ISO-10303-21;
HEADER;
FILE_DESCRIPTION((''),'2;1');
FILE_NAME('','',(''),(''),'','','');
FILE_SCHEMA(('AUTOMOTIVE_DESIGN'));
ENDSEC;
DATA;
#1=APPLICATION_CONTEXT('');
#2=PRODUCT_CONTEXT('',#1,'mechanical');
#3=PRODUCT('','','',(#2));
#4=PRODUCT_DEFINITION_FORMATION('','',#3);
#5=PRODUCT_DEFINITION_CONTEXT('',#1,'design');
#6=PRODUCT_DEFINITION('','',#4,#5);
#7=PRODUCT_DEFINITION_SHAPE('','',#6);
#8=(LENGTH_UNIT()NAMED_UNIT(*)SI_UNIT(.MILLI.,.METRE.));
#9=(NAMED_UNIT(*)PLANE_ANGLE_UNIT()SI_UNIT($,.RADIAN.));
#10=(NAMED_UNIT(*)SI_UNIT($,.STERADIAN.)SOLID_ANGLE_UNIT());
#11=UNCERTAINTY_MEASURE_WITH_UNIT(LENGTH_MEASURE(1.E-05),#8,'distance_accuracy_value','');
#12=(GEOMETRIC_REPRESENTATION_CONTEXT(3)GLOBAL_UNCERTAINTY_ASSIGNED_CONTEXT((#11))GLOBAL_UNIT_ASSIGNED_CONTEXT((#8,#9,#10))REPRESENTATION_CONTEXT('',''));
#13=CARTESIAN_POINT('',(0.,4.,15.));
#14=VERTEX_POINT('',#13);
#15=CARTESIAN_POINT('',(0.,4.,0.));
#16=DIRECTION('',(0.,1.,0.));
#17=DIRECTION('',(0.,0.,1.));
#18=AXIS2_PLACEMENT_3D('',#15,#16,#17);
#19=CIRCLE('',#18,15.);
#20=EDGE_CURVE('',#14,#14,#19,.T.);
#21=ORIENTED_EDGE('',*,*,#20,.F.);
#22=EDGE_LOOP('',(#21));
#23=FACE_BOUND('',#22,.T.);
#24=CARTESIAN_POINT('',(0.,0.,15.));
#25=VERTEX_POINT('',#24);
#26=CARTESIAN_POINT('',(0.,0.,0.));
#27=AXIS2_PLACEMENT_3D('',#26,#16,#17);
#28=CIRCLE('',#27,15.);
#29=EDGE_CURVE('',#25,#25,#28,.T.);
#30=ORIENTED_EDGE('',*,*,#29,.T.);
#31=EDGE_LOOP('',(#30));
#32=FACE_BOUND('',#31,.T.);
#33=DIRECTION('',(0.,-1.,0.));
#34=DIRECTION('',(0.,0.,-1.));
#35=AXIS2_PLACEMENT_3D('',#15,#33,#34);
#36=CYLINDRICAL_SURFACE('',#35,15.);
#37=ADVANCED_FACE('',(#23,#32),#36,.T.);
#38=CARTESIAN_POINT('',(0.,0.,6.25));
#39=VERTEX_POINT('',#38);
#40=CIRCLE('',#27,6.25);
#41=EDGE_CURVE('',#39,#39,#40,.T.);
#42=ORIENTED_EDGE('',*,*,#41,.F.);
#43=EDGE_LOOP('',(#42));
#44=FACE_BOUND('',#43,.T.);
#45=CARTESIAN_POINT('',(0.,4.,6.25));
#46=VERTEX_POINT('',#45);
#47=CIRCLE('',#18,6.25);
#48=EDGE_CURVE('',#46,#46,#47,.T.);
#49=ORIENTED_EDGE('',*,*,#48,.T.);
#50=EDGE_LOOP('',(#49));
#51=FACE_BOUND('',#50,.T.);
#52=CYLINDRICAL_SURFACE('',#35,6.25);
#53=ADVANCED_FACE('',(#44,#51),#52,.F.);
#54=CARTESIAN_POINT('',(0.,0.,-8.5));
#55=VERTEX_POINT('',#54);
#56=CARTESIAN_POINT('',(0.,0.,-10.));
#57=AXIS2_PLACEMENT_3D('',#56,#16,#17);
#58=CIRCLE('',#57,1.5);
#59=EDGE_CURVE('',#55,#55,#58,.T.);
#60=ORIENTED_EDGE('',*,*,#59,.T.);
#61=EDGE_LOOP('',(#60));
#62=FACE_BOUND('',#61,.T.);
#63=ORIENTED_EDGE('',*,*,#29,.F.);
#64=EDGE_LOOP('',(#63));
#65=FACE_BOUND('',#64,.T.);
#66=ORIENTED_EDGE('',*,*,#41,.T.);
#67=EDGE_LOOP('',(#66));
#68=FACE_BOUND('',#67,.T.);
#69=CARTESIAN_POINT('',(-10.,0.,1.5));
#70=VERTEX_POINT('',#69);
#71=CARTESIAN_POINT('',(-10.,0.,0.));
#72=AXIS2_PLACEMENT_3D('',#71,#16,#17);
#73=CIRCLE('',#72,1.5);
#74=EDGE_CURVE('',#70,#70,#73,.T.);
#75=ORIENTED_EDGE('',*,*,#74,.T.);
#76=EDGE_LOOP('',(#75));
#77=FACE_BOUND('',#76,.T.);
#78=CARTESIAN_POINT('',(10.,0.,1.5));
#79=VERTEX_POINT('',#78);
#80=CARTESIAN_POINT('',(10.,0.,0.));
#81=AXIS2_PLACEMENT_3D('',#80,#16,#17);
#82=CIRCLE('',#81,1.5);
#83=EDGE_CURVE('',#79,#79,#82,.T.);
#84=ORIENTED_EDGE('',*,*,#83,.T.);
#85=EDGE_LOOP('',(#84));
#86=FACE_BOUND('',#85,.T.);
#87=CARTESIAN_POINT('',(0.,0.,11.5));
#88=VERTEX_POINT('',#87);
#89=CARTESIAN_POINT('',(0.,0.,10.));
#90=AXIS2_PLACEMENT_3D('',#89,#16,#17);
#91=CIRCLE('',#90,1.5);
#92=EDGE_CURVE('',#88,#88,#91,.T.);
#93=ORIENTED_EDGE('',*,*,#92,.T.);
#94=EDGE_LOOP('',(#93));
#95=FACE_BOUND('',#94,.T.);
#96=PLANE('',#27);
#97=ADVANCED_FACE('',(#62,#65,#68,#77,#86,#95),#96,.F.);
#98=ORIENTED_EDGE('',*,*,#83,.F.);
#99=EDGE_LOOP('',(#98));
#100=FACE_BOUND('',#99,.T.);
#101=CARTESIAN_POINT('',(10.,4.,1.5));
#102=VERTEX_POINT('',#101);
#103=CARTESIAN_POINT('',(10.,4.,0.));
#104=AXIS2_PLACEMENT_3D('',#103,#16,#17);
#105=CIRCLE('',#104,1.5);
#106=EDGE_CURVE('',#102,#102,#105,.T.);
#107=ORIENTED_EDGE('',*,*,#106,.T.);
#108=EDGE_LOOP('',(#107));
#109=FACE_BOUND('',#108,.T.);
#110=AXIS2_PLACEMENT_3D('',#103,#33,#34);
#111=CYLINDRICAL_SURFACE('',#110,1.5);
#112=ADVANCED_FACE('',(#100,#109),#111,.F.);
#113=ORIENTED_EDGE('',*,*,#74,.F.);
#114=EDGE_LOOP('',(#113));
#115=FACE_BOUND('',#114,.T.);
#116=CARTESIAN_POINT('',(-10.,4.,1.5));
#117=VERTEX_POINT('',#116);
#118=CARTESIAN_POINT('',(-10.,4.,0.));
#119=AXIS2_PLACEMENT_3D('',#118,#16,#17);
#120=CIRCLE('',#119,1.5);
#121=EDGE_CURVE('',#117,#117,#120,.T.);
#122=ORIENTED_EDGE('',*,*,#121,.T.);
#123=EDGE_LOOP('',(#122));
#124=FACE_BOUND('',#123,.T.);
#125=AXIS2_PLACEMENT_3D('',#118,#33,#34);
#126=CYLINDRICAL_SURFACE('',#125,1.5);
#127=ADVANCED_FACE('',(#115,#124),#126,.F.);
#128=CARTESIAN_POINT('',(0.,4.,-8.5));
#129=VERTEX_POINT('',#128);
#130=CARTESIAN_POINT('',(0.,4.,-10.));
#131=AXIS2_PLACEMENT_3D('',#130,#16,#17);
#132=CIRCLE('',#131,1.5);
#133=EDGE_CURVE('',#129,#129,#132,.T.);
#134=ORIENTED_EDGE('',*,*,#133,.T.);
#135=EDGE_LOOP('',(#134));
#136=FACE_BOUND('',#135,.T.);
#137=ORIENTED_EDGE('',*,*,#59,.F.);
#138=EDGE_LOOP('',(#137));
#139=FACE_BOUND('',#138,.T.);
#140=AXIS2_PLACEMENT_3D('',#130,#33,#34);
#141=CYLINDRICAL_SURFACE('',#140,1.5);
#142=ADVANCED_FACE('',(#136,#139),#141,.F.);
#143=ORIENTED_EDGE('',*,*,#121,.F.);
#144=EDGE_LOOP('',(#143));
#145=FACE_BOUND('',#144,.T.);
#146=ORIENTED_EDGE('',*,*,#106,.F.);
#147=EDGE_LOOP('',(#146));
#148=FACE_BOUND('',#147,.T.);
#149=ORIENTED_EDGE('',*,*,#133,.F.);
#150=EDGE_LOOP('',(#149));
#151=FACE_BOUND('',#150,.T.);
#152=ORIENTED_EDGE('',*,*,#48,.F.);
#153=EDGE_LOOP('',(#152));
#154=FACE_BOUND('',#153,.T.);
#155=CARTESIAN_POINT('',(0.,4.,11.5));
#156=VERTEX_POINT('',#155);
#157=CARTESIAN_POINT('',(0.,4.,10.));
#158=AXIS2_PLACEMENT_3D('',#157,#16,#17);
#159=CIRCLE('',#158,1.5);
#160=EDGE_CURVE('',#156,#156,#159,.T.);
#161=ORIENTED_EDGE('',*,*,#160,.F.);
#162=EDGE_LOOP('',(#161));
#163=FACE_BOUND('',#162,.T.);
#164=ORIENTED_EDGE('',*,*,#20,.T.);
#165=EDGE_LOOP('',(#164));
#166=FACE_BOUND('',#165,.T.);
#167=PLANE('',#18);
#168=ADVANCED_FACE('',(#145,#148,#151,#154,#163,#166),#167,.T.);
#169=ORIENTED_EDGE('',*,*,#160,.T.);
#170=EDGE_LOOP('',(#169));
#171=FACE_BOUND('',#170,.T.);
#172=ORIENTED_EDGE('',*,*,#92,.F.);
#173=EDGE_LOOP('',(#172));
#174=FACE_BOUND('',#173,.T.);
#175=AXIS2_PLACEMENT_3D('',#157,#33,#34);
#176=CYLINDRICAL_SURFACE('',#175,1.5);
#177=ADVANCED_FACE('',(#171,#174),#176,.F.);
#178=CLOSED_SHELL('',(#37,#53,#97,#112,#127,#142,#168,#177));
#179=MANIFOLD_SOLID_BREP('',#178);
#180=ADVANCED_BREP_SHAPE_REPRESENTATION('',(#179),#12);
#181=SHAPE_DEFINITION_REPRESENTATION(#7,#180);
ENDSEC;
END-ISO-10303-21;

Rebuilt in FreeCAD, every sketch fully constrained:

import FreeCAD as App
import Part
import Sketcher

V = App.Vector

doc = App.newDocument("Part")
body = doc.addObject("PartDesign::Body", "Body")

# Sketch on XZ plane
sketch1 = body.newObject("Sketcher::SketchObject", "Sketch")
sketch1.AttachmentSupport = (doc.getObject("XZ_Plane"), [""])
sketch1.MapMode = "FlatFace"
sketch1.addGeometry(Part.Circle(V(0, 0, 0), V(0, 0, 1), 15), False)
sketch1.addGeometry(Part.Circle(V(0, -10, 0), V(0, 0, 1), 1.5), False)
sketch1.addGeometry(Part.Circle(V(-10, 0, 0), V(0, 0, 1), 1.5), False)
sketch1.addGeometry(Part.Circle(V(10, 0, 0), V(0, 0, 1), 1.5), False)
sketch1.addGeometry(Part.Circle(V(0, 0, 0), V(0, 0, 1), 6.25), False)
sketch1.addGeometry(Part.Circle(V(0, 10, 0), V(0, 0, 1), 1.5), False)
sketch1.addConstraint(Sketcher.Constraint("Coincident", 0, 3, -1, 1))
sketch1.addConstraint(Sketcher.Constraint("Coincident", 4, 3, -1, 1))
sketch1.addConstraint(Sketcher.Constraint("Equal", 1, 2))
sketch1.addConstraint(Sketcher.Constraint("Equal", 2, 3))
sketch1.addConstraint(Sketcher.Constraint("Equal", 3, 5))
sketch1.addConstraint(Sketcher.Constraint("Symmetric", 2, 3, 3, 3, -1, 1))
sketch1.addConstraint(Sketcher.Constraint("Symmetric", 1, 3, 5, 3, -1, 1))
sketch1.addConstraint(Sketcher.Constraint("PointOnObject", 1, 3, -2))
sketch1.addConstraint(Sketcher.Constraint("PointOnObject", 2, 3, -1))
sketch1.addConstraint(Sketcher.Constraint("Diameter", 0, 30.0))
sketch1.addConstraint(Sketcher.Constraint("Diameter", 1, 3.0))
sketch1.addConstraint(Sketcher.Constraint("Diameter", 4, 12.5))
sketch1.addConstraint(Sketcher.Constraint("DistanceY", 1, 3, -1, 1, 10.0))
sketch1.addConstraint(Sketcher.Constraint("DistanceX", 2, 3, -1, 1, 10.0))
pad1 = body.newObject("PartDesign::Pad", "Pad")
pad1.Profile = sketch1
pad1.Length = 4
pad1.Reversed = True

doc.recompute()
